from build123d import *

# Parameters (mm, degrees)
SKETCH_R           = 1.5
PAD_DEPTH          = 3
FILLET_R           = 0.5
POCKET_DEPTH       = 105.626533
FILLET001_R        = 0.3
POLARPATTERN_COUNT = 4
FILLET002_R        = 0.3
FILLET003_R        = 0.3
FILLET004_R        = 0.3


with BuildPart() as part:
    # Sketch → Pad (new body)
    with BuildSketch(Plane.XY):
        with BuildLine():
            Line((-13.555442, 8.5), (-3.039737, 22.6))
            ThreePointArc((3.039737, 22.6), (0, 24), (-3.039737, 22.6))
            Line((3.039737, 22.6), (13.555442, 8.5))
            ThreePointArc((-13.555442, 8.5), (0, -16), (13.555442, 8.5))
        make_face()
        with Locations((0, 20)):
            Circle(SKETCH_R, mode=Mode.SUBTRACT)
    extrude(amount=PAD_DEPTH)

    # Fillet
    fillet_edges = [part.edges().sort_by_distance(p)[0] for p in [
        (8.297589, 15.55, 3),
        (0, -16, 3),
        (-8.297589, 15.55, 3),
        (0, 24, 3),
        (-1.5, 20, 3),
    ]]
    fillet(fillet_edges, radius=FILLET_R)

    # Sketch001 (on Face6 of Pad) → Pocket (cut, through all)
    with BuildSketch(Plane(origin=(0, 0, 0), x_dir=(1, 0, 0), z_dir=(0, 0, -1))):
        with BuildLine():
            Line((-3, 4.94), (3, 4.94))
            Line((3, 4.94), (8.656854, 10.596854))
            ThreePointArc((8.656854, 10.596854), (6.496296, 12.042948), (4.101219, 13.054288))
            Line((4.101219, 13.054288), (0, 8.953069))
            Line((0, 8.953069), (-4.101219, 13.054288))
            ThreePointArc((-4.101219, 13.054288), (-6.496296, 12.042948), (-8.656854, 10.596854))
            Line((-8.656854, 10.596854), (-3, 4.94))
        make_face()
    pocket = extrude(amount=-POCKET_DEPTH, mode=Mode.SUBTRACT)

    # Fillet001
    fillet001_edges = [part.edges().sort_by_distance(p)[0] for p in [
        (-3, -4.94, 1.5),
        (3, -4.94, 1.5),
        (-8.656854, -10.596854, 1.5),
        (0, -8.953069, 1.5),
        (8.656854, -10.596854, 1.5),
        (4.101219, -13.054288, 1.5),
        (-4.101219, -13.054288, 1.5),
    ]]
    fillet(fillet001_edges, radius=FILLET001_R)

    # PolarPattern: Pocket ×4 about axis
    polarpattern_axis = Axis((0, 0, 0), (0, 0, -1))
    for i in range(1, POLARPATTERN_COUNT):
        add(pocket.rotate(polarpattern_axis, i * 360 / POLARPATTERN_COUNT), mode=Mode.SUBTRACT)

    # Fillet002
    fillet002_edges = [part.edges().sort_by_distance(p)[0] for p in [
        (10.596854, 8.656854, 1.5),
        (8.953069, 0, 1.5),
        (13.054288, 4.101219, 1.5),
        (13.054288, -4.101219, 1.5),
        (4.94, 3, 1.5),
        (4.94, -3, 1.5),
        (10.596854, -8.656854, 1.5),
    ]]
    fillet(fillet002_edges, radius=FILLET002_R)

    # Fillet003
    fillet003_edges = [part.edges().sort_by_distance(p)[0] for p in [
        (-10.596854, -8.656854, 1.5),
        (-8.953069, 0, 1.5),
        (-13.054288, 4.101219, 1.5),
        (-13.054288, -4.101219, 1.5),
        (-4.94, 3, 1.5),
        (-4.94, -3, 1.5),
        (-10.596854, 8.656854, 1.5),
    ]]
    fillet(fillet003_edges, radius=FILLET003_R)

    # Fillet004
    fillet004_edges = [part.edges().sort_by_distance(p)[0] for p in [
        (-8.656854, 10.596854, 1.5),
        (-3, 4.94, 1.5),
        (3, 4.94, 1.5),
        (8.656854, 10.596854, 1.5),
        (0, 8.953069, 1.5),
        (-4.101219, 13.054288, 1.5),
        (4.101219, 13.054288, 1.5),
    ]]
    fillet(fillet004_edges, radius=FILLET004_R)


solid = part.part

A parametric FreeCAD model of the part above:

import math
import FreeCAD as App
import Part
import Sketcher
from FreeCAD import Vector


def edges_at(feature, points):
    """Names of the edges that pass closest to the given points."""
    edges = feature.Shape.Edges
    near = lambda p: min(range(len(edges)), key=lambda i: edges[i].distToShape(Part.Vertex(*p))[0])
    return sorted({f"Edge{near(p) + 1}" for p in points})

doc = App.newDocument("Part")
body = doc.addObject("PartDesign::Body", "Body")

# Sketch on XY plane
sketch1 = body.newObject("Sketcher::SketchObject", "Sketch")
sketch1.AttachmentSupport = (doc.getObject("XY_Plane"), [""])
sketch1.MapMode = "FlatFace"
sketch1.addGeometry([
    Part.LineSegment(Vector(-3, 22.6, 0), Vector(-13.6, 8.5, 0)),  # 0
    Part.ArcOfCircle(Part.Circle(Vector(0, 0, 0), Vector(0, 0, 1), 16), math.radians(148), math.radians(392)),  # 1
    Part.LineSegment(Vector(13.6, 8.5, 0), Vector(3, 22.6, 0)),  # 2
    Part.ArcOfCircle(Part.Circle(Vector(0, 20, 0), Vector(0, 0, 1), 4), math.radians(41), math.radians(139)),  # 3
    Part.Circle(Vector(0, 20, 0), Vector(0, 0, 1), 1.5),  # 4
], False)
sketch1.addConstraint([
    Sketcher.Constraint("Coincident", 0, 2, 1, 1),
    Sketcher.Constraint("Coincident", 1, 2, 2, 1),
    Sketcher.Constraint("Coincident", 2, 2, 3, 1),
    Sketcher.Constraint("Coincident", 3, 2, 0, 1),
    Sketcher.Constraint("Coincident", 1, 3, -1, 1),
    Sketcher.Constraint("Coincident", 4, 3, 3, 3),
    Sketcher.Constraint("Symmetric", 2, 2, 3, 2, -2),
    Sketcher.Constraint("Horizontal", 0, 2, 1, 2),
    Sketcher.Constraint("Diameter", 4, 3.0),
    Sketcher.Constraint("Radius", 1, 16.0),
    Sketcher.Constraint("Radius", 3, 4.0),
    Sketcher.Constraint("DistanceY", -1, 1, 3, 3, 20.0),
    Sketcher.Constraint("DistanceY", -1, 1, 0, 2, 8.5),
    Sketcher.Constraint("DistanceY", -1, 1, 2, 2, 22.6),
])
pad1 = body.newObject("PartDesign::Pad", "Pad")
pad1.Profile = sketch1
pad1.Length = 3
doc.recompute()

fillet = body.newObject("PartDesign::Fillet", "Fillet")
fillet.Base = (pad1, edges_at(pad1, [
    (8.298, 15.55, 3),
    (0, -16, 3),
    (-8.298, 15.55, 3),
    (0, 24, 3),
    (-1.5, 20, 3),
]))
fillet.Radius = 0.5

# Sketch on XY plane
sketch2 = body.newObject("Sketcher::SketchObject", "Sketch001")
sketch2.AttachmentSupport = (doc.getObject("XY_Plane"), [""])
sketch2.MapMode = "FlatFace"
sketch2.addGeometry([
    Part.LineSegment(Vector(-3, -4.94, 0), Vector(3, -4.94, 0)),  # 0
    Part.LineSegment(Vector(3, -4.94, 0), Vector(8.656854, -10.596854, 0)),  # 1
    Part.ArcOfCircle(Part.Circle(Vector(0.000023, -0.000043, 0), Vector(0, 0, 1), 13.683316), math.radians(-72.559072), math.radians(-50.753656)),  # 2
    Part.LineSegment(Vector(4.101219, -13.054288, 0), Vector(0, -8.953069, 0)),  # 3
    Part.LineSegment(Vector(0, -8.953069, 0), Vector(-4.101219, -13.054288, 0)),  # 4
    Part.ArcOfCircle(Part.Circle(Vector(-0.000023, -0.000043, 0), Vector(0, 0, 1), 13.683316), math.radians(-129.246344), math.radians(-107.440928)),  # 5
    Part.LineSegment(Vector(-8.656854, -10.596854, 0), Vector(-3, -4.94, 0)),  # 6
], False)
sketch2.addConstraint([
    Sketcher.Constraint("Coincident", 0, 2, 1, 1),
    Sketcher.Constraint("Coincident", 1, 2, 2, 2),
    Sketcher.Constraint("Coincident", 2, 1, 3, 1),
    Sketcher.Constraint("Coincident", 3, 2, 4, 1),
    Sketcher.Constraint("Coincident", 4, 2, 5, 2),
    Sketcher.Constraint("Coincident", 5, 1, 6, 1),
    Sketcher.Constraint("Coincident", 6, 2, 0, 1),
    Sketcher.Constraint("Horizontal", 0),
    Sketcher.Constraint("Equal", 2, 5),
    Sketcher.Constraint("Symmetric", 2, 3, 5, 3, -2),
    Sketcher.Constraint("PointOnObject", 3, 2, -2),
    Sketcher.Constraint("Parallel", 1, 3),
    Sketcher.Constraint("Perpendicular", 3, 4),
    Sketcher.Constraint("Parallel", 4, 6),
    Sketcher.Constraint("Horizontal", 2, 1, 4, 2),
    Sketcher.Constraint("Horizontal", 1, 2, 5, 1),
    Sketcher.Constraint("DistanceX", 0, 1, 0, 2, 6.0),
    Sketcher.Constraint("Distance", 1, 8.0),
    Sketcher.Constraint("Distance", 3, 5.8),
    Sketcher.Constraint("DistanceY", 0, 2, -1, 1, 4.94),
    Sketcher.Constraint("Radius", 2, 13.683316),
    Sketcher.Constraint("DistanceY", 3, 2, -1, 1, 8.953069),
])
pocket1 = body.newObject("PartDesign::Pocket", "Pocket")
pocket1.Profile = sketch2
pocket1.Type = "ThroughAll"
pocket1.Reversed = True
doc.recompute()

fillet2 = body.newObject("PartDesign::Fillet", "Fillet001")
fillet2.Base = (pocket1, edges_at(pocket1, [
    (-3, -4.94, 1.5),
    (3, -4.94, 1.5),
    (-8.657, -10.597, 1.5),
    (0, -8.953, 1.5),
    (8.657, -10.597, 1.5),
    (4.101, -13.054, 1.5),
    (-4.101, -13.054, 1.5),
]))
fillet2.Radius = 0.3
doc.recompute()

polarpattern = body.newObject("PartDesign::PolarPattern", "PolarPattern")
polarpattern.Originals = [pocket1]
polarpattern.Axis = (doc.getObject("Z_Axis"), [""])
polarpattern.Angle = 360
polarpattern.Occurrences = 4
body.Tip = polarpattern
doc.recompute()

fillet3 = body.newObject("PartDesign::Fillet", "Fillet002")
fillet3.Base = (polarpattern, edges_at(polarpattern, [
    (10.597, 8.657, 1.5),
    (8.953, 0, 1.5),
    (13.054, 4.101, 1.5),
    (13.054, -4.101, 1.5),
    (4.94, 3, 1.5),
    (4.94, -3, 1.5),
    (10.597, -8.657, 1.5),
]))
fillet3.Radius = 0.3
doc.recompute()

fillet4 = body.newObject("PartDesign::Fillet", "Fillet003")
fillet4.Base = (fillet3, edges_at(fillet3, [
    (-10.597, -8.657, 1.5),
    (-8.953, 0, 1.5),
    (-13.054, 4.101, 1.5),
    (-13.054, -4.101, 1.5),
    (-4.94, 3, 1.5),
    (-4.94, -3, 1.5),
    (-10.597, 8.657, 1.5),
]))
fillet4.Radius = 0.3
doc.recompute()

fillet5 = body.newObject("PartDesign::Fillet", "Fillet004")
fillet5.Base = (fillet4, edges_at(fillet4, [
    (-8.657, 10.597, 1.5),
    (-3, 4.94, 1.5),
    (3, 4.94, 1.5),
    (8.657, 10.597, 1.5),
    (0, 8.953, 1.5),
    (-4.101, 13.054, 1.5),
    (4.101, 13.054, 1.5),
]))
fillet5.Radius = 0.3

doc.recompute()
